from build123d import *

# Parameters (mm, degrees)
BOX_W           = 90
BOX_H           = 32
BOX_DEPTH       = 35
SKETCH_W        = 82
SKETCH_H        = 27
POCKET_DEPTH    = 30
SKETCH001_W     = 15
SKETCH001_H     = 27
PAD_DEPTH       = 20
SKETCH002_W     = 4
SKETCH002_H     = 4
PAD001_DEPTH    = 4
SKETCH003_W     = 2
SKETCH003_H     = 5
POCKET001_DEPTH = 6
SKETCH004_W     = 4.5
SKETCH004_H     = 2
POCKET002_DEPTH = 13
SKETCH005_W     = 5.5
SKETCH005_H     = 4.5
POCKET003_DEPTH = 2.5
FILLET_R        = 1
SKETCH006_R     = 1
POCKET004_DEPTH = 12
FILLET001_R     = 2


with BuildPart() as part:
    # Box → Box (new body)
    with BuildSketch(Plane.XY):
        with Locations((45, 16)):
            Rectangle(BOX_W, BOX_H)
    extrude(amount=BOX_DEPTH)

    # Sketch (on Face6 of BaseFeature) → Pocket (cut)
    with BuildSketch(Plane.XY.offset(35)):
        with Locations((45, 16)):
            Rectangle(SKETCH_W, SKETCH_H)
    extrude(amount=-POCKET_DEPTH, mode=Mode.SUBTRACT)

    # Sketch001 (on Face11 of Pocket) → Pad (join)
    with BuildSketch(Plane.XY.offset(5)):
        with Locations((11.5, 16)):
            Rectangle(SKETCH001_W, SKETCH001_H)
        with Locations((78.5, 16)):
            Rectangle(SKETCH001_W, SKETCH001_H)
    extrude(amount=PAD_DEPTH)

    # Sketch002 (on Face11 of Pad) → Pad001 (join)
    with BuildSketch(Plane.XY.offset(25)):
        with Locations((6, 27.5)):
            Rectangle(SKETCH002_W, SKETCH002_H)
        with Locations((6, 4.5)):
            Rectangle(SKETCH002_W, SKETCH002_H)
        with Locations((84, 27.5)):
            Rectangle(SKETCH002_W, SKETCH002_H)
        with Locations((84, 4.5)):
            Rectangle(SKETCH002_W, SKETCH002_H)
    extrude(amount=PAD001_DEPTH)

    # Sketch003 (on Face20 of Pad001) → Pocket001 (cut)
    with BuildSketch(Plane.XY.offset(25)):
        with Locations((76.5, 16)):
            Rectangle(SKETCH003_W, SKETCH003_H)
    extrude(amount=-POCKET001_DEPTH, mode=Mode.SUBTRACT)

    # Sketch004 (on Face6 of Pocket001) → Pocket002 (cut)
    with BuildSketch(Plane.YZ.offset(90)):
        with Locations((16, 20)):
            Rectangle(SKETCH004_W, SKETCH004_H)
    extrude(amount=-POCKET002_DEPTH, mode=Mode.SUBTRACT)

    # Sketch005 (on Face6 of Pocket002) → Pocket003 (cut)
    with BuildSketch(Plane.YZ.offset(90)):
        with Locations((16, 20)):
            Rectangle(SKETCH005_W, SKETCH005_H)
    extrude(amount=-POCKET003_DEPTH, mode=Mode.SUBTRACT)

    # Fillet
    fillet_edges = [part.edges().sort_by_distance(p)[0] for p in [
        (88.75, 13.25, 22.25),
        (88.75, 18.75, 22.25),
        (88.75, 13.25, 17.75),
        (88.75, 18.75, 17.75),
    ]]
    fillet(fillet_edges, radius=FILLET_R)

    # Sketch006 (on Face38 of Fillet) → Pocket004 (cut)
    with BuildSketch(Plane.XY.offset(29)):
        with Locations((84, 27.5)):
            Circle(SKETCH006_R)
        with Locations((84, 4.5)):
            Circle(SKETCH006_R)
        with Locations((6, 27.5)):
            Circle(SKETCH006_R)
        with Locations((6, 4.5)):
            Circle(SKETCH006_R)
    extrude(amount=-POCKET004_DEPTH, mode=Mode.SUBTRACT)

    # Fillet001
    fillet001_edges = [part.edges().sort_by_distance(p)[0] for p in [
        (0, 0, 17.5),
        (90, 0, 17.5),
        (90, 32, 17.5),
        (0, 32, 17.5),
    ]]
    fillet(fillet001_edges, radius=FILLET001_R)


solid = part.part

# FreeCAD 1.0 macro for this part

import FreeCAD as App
import Part
import Sketcher

V = App.Vector


def edges_at(feature, points):
    """Names of the edges that pass closest to the given points."""
    edges = feature.Shape.Edges
    near = lambda p: min(range(len(edges)), key=lambda i: edges[i].distToShape(Part.Vertex(*p))[0])
    return sorted({f"Edge{near(p) + 1}" for p in points})

doc = App.newDocument("Part")
params = doc.addObject("Spreadsheet::Sheet", "Params")
for row, (alias, value) in enumerate([
    ("sketch1_width", "90 mm"),
    ("sketch1_height", "32 mm"),
    ("pad1_length", "35 mm"),
    ("sketch2_width", "82 mm"),
    ("sketch2_height", "27 mm"),
    ("pocket1_length", "30 mm"),
    ("sketch3_width", "15 mm"),
    ("sketch3_height", "27 mm"),
    ("pad2_length", "20 mm"),
    ("sketch4_width", "4 mm"),
    ("pad3_length", "4 mm"),
    ("sketch5_width", "2 mm"),
    ("sketch5_height", "5 mm"),
    ("pocket2_length", "6 mm"),
    ("sketch6_height", "2 mm"),
    ("sketch6_width", "4.5 mm"),
    ("pocket3_length", "13 mm"),
    ("sketch7_width", "5.5 mm"),
    ("sketch7_height", "4.5 mm"),
    ("pocket4_length", "2.5 mm"),
    ("fillet_radius", "1 mm"),
    ("sketch8_diameter", "2 mm"),
    ("pocket5_length", "12 mm"),
    ("fillet2_radius", "2 mm"),
], start=1):
    params.set(f"A{row}", alias)
    params.set(f"B{row}", "=" + value)
    params.setAlias(f"B{row}", alias)

body = doc.addObject("PartDesign::Body", "Body")

sketch1 = doc.addObject("Sketcher::SketchObject", "Sketch")
body.addObject(sketch1)
sketch1.AttachmentSupport = (doc.XY_Plane, [""])
sketch1.MapMode = "FlatFace"
sketch1.addGeometry(Part.LineSegment(V(0, 32, 0), V(0, 0, 0)), False)
sketch1.addGeometry(Part.LineSegment(V(0, 0, 0), V(90, 0, 0)), False)
sketch1.addGeometry(Part.LineSegment(V(90, 0, 0), V(90, 32, 0)), False)
sketch1.addGeometry(Part.LineSegment(V(90, 32, 0), V(0, 32, 0)), False)
sketch1.addConstraint(Sketcher.Constraint("Coincident", 0, 2, 1, 1))
sketch1.addConstraint(Sketcher.Constraint("Coincident", 1, 2, 2, 1))
sketch1.addConstraint(Sketcher.Constraint("Coincident", 2, 2, 3, 1))
sketch1.addConstraint(Sketcher.Constraint("Coincident", 3, 2, 0, 1))
sketch1.addConstraint(Sketcher.Constraint("Vertical", 0))
sketch1.addConstraint(Sketcher.Constraint("Horizontal", 1))
sketch1.addConstraint(Sketcher.Constraint("Vertical", 2))
sketch1.addConstraint(Sketcher.Constraint("Horizontal", 3))
sketch1.addConstraint(Sketcher.Constraint("Coincident", 0, 2, -1, 1))
sketch1.addConstraint(Sketcher.Constraint("DistanceX", 1, 1, 1, 2, 90.0))
sketch1.addConstraint(Sketcher.Constraint("DistanceY", 0, 2, 0, 1, 32.0))
sketch1.setExpression("Constraints[9]", "Params.sketch1_width")
sketch1.setExpression("Constraints[10]", "Params.sketch1_height")
pad1 = doc.addObject("PartDesign::Pad", "Pad")
body.addObject(pad1)
pad1.Profile = sketch1
pad1.setExpression("Length", "Params.pad1_length")

sketch2 = doc.addObject("Sketcher::SketchObject", "Sketch001")
body.addObject(sketch2)
sketch2.AttachmentSupport = (doc.XY_Plane, [""])
sketch2.MapMode = "FlatFace"
sketch2.AttachmentOffset = App.Placement(V(0, 0, 35), App.Rotation())
sketch2.addGeometry(Part.LineSegment(V(4, 29.5, 0), V(4, 2.5, 0)), False)
sketch2.addGeometry(Part.LineSegment(V(4, 2.5, 0), V(86, 2.5, 0)), False)
sketch2.addGeometry(Part.LineSegment(V(86, 2.5, 0), V(86, 29.5, 0)), False)
sketch2.addGeometry(Part.LineSegment(V(86, 29.5, 0), V(4, 29.5, 0)), False)
sketch2.addConstraint(Sketcher.Constraint("Coincident", 0, 2, 1, 1))
sketch2.addConstraint(Sketcher.Constraint("Coincident", 1, 2, 2, 1))
sketch2.addConstraint(Sketcher.Constraint("Coincident", 2, 2, 3, 1))
sketch2.addConstraint(Sketcher.Constraint("Coincident", 3, 2, 0, 1))
sketch2.addConstraint(Sketcher.Constraint("Vertical", 0))
sketch2.addConstraint(Sketcher.Constraint("Horizontal", 1))
sketch2.addConstraint(Sketcher.Constraint("Vertical", 2))
sketch2.addConstraint(Sketcher.Constraint("Horizontal", 3))
sketch2.addConstraint(Sketcher.Constraint("DistanceX", 1, 1, 1, 2, 82.0))
sketch2.addConstraint(Sketcher.Constraint("DistanceY", 0, 2, 0, 1, 27.0))
sketch2.addConstraint(Sketcher.Constraint("DistanceX", -1, 1, 0, 2, 4.0))
sketch2.addConstraint(Sketcher.Constraint("DistanceY", -1, 1, 0, 2, 2.5))
sketch2.setExpression("Constraints[8]", "Params.sketch2_width")
sketch2.setExpression("Constraints[9]", "Params.sketch2_height")
pocket1 = doc.addObject("PartDesign::Pocket", "Pocket")
body.addObject(pocket1)
pocket1.Profile = sketch2
pocket1.setExpression("Length", "Params.pocket1_length")

sketch3 = doc.addObject("Sketcher::SketchObject", "Sketch002")
body.addObject(sketch3)
sketch3.AttachmentSupport = (doc.XY_Plane, [""])
sketch3.MapMode = "FlatFace"
sketch3.AttachmentOffset = App.Placement(V(0, 0, 5), App.Rotation())
sketch3.addGeometry(Part.LineSegment(V(4, 29.5, 0), V(4, 2.5, 0)), False)
sketch3.addGeometry(Part.LineSegment(V(4, 2.5, 0), V(19, 2.5, 0)), False)
sketch3.addGeometry(Part.LineSegment(V(19, 2.5, 0), V(19, 29.5, 0)), False)
sketch3.addGeometry(Part.LineSegment(V(19, 29.5, 0), V(4, 29.5, 0)), False)
sketch3.addGeometry(Part.LineSegment(V(71, 29.5, 0), V(71, 2.5, 0)), False)
sketch3.addGeometry(Part.LineSegment(V(71, 2.5, 0), V(86, 2.5, 0)), False)
sketch3.addGeometry(Part.LineSegment(V(86, 2.5, 0), V(86, 29.5, 0)), False)
sketch3.addGeometry(Part.LineSegment(V(86, 29.5, 0), V(71, 29.5, 0)), False)
sketch3.addConstraint(Sketcher.Constraint("Coincident", 0, 2, 1, 1))
sketch3.addConstraint(Sketcher.Constraint("Coincident", 1, 2, 2, 1))
sketch3.addConstraint(Sketcher.Constraint("Coincident", 2, 2, 3, 1))
sketch3.addConstraint(Sketcher.Constraint("Coincident", 3, 2, 0, 1))
sketch3.addConstraint(Sketcher.Constraint("Coincident", 4, 2, 5, 1))
sketch3.addConstraint(Sketcher.Constraint("Coincident", 5, 2, 6, 1))
sketch3.addConstraint(Sketcher.Constraint("Coincident", 6, 2, 7, 1))
sketch3.addConstraint(Sketcher.Constraint("Coincident", 7, 2, 4, 1))
sketch3.addConstraint(Sketcher.Constraint("Vertical", 0))
sketch3.addConstraint(Sketcher.Constraint("Horizontal", 1))
sketch3.addConstraint(Sketcher.Constraint("Vertical", 2))
sketch3.addConstraint(Sketcher.Constraint("Horizontal", 3))
sketch3.addConstraint(Sketcher.Constraint("Vertical", 4))
sketch3.addConstraint(Sketcher.Constraint("Horizontal", 5))
sketch3.addConstraint(Sketcher.Constraint("Vertical", 6))
sketch3.addConstraint(Sketcher.Constraint("Horizontal", 7))
sketch3.addConstraint(Sketcher.Constraint("Horizontal", 1, 2, 4, 2))
sketch3.addConstraint(Sketcher.Constraint("Horizontal", 3, 2, 6, 2))
sketch3.addConstraint(Sketcher.Constraint("Equal", 3, 5))
sketch3.addConstraint(Sketcher.Constraint("DistanceX", 1, 1, 1, 2, 15.0))
sketch3.addConstraint(Sketcher.Constraint("DistanceY", 0, 2, 0, 1, 27.0))
sketch3.addConstraint(Sketcher.Constraint("DistanceX", -1, 1, 0, 2, 4.0))
sketch3.addConstraint(Sketcher.Constraint("DistanceX", -1, 1, 4, 2, 71.0))
sketch3.addConstraint(Sketcher.Constraint("DistanceY", -1, 1, 0, 2, 2.5))
sketch3.setExpression("Constraints[19]", "Params.sketch3_width")
sketch3.setExpression("Constraints[20]", "Params.sketch3_height")
pad2 = doc.addObject("PartDesign::Pad", "Pad001")
body.addObject(pad2)
pad2.Profile = sketch3
pad2.setExpression("Length", "Params.pad2_length")

sketch4 = doc.addObject("Sketcher::SketchObject", "Sketch003")
body.addObject(sketch4)
sketch4.AttachmentSupport = (doc.XY_Plane, [""])
sketch4.MapMode = "FlatFace"
sketch4.AttachmentOffset = App.Placement(V(0, 0, 25), App.Rotation())
sketch4.addGeometry(Part.LineSegment(V(4, 29.5, 0), V(4, 25.5, 0)), False)
sketch4.addGeometry(Part.LineSegment(V(4, 25.5, 0), V(8, 25.5, 0)), False)
sketch4.addGeometry(Part.LineSegment(V(8, 25.5, 0), V(8, 29.5, 0)), False)
sketch4.addGeometry(Part.LineSegment(V(8, 29.5, 0), V(4, 29.5, 0)), False)
sketch4.addGeometry(Part.LineSegment(V(4, 6.5, 0), V(4, 2.5, 0)), False)
sketch4.addGeometry(Part.LineSegment(V(4, 2.5, 0), V(8, 2.5, 0)), False)
sketch4.addGeometry(Part.LineSegment(V(8, 2.5, 0), V(8, 6.5, 0)), False)
sketch4.addGeometry(Part.LineSegment(V(8, 6.5, 0), V(4, 6.5, 0)), False)
sketch4.addGeometry(Part.LineSegment(V(82, 29.5, 0), V(82, 25.5, 0)), False)
sketch4.addGeometry(Part.LineSegment(V(82, 25.5, 0), V(86, 25.5, 0)), False)
sketch4.addGeometry(Part.LineSegment(V(86, 25.5, 0), V(86, 29.5, 0)), False)
sketch4.addGeometry(Part.LineSegment(V(86, 29.5, 0), V(82, 29.5, 0)), False)
sketch4.addGeometry(Part.LineSegment(V(82, 6.5, 0), V(82, 2.5, 0)), False)
sketch4.addGeometry(Part.LineSegment(V(82, 2.5, 0), V(86, 2.5, 0)), False)
sketch4.addGeometry(Part.LineSegment(V(86, 2.5, 0), V(86, 6.5, 0)), False)
sketch4.addGeometry(Part.LineSegment(V(86, 6.5, 0), V(82, 6.5, 0)), False)
sketch4.addConstraint(Sketcher.Constraint("Coincident", 0, 2, 1, 1))
sketch4.addConstraint(Sketcher.Constraint("Coincident", 1, 2, 2, 1))
sketch4.addConstraint(Sketcher.Constraint("Coincident", 2, 2, 3, 1))
sketch4.addConstraint(Sketcher.Constraint("Coincident", 3, 2, 0, 1))
sketch4.addConstraint(Sketcher.Constraint("Coincident", 4, 2, 5, 1))
sketch4.addConstraint(Sketcher.Constraint("Coincident", 5, 2, 6, 1))
sketch4.addConstraint(Sketcher.Constraint("Coincident", 6, 2, 7, 1))
sketch4.addConstraint(Sketcher.Constraint("Coincident", 7, 2, 4, 1))
sketch4.addConstraint(Sketcher.Constraint("Coincident", 8, 2, 9, 1))
sketch4.addConstraint(Sketcher.Constraint("Coincident", 9, 2, 10, 1))
sketch4.addConstraint(Sketcher.Constraint("Coincident", 10, 2, 11, 1))
sketch4.addConstraint(Sketcher.Constraint("Coincident", 11, 2, 8, 1))
sketch4.addConstraint(Sketcher.Constraint("Coincident", 12, 2, 13, 1))
sketch4.addConstraint(Sketcher.Constraint("Coincident", 13, 2, 14, 1))
sketch4.addConstraint(Sketcher.Constraint("Coincident", 14, 2, 15, 1))
sketch4.addConstraint(Sketcher.Constraint("Coincident", 15, 2, 12, 1))
sketch4.addConstraint(Sketcher.Constraint("Vertical", 0))
sketch4.addConstraint(Sketcher.Constraint("Horizontal", 1))
sketch4.addConstraint(Sketcher.Constraint("Vertical", 2))
sketch4.addConstraint(Sketcher.Constraint("Horizontal", 3))
sketch4.addConstraint(Sketcher.Constraint("Vertical", 4))
sketch4.addConstraint(Sketcher.Constraint("Horizontal", 5))
sketch4.addConstraint(Sketcher.Constraint("Vertical", 6))
sketch4.addConstraint(Sketcher.Constraint("Horizontal", 7))
sketch4.addConstraint(Sketcher.Constraint("Vertical", 8))
sketch4.addConstraint(Sketcher.Constraint("Horizontal", 9))
sketch4.addConstraint(Sketcher.Constraint("Vertical", 10))
sketch4.addConstraint(Sketcher.Constraint("Horizontal", 11))
sketch4.addConstraint(Sketcher.Constraint("Vertical", 12))
sketch4.addConstraint(Sketcher.Constraint("Horizontal", 13))
sketch4.addConstraint(Sketcher.Constraint("Vertical", 14))
sketch4.addConstraint(Sketcher.Constraint("Horizontal", 15))
sketch4.addConstraint(Sketcher.Constraint("Horizontal", 1, 2, 8, 2))
sketch4.addConstraint(Sketcher.Constraint("Horizontal", 3, 2, 10, 2))
sketch4.addConstraint(Sketcher.Constraint("Horizontal", 5, 2, 12, 2))
sketch4.addConstraint(Sketcher.Constraint("Horizontal", 7, 2, 14, 2))
sketch4.addConstraint(Sketcher.Constraint("Vertical", 3, 2, 4, 2))
sketch4.addConstraint(Sketcher.Constraint("Vertical", 2, 2, 5, 2))
sketch4.addConstraint(Sketcher.Constraint("Vertical", 11, 2, 12, 2))
sketch4.addConstraint(Sketcher.Constraint("Vertical", 10, 2, 13, 2))
sketch4.addConstraint(Sketcher.Constraint("Equal", 7, 9))
sketch4.addConstraint(Sketcher.Constraint("Equal", 15, 0))
sketch4.addConstraint(Sketcher.Constraint("Equal", 2, 4))
sketch4.addConstraint(Sketcher.Constraint("DistanceX", 1, 1, 1, 2, 4.0))
sketch4.addConstraint(Sketcher.Constraint("DistanceX", -1, 1, 0, 2, 4.0))
sketch4.addConstraint(Sketcher.Constraint("DistanceX", -1, 1, 8, 2, 82.0))
sketch4.addConstraint(Sketcher.Constraint("DistanceY", 4, 2, 0, 2, 23.0))
sketch4.addConstraint(Sketcher.Constraint("DistanceY", -1, 1, 0, 2, 25.5))
sketch4.setExpression("Constraints[43]", "Params.sketch4_width")
pad3 = doc.addObject("PartDesign::Pad", "Pad002")
body.addObject(pad3)
pad3.Profile = sketch4
pad3.setExpression("Length", "Params.pad3_length")

sketch5 = doc.addObject("Sketcher::SketchObject", "Sketch004")
body.addObject(sketch5)
sketch5.AttachmentSupport = (doc.XY_Plane, [""])
sketch5.MapMode = "FlatFace"
sketch5.AttachmentOffset = App.Placement(V(0, 0, 25), App.Rotation())
sketch5.addGeometry(Part.LineSegment(V(75.5, 18.5, 0), V(75.5, 13.5, 0)), False)
sketch5.addGeometry(Part.LineSegment(V(75.5, 13.5, 0), V(77.5, 13.5, 0)), False)
sketch5.addGeometry(Part.LineSegment(V(77.5, 13.5, 0), V(77.5, 18.5, 0)), False)
sketch5.addGeometry(Part.LineSegment(V(77.5, 18.5, 0), V(75.5, 18.5, 0)), False)
sketch5.addConstraint(Sketcher.Constraint("Coincident", 0, 2, 1, 1))
sketch5.addConstraint(Sketcher.Constraint("Coincident", 1, 2, 2, 1))
sketch5.addConstraint(Sketcher.Constraint("Coincident", 2, 2, 3, 1))
sketch5.addConstraint(Sketcher.Constraint("Coincident", 3, 2, 0, 1))
sketch5.addConstraint(Sketcher.Constraint("Vertical", 0))
sketch5.addConstraint(Sketcher.Constraint("Horizontal", 1))
sketch5.addConstraint(Sketcher.Constraint("Vertical", 2))
sketch5.addConstraint(Sketcher.Constraint("Horizontal", 3))
sketch5.addConstraint(Sketcher.Constraint("DistanceX", 1, 1, 1, 2, 2.0))
sketch5.addConstraint(Sketcher.Constraint("DistanceY", 0, 2, 0, 1, 5.0))
sketch5.addConstraint(Sketcher.Constraint("DistanceX", -1, 1, 0, 2, 75.5))
sketch5.addConstraint(Sketcher.Constraint("DistanceY", -1, 1, 0, 2, 13.5))
sketch5.setExpression("Constraints[8]", "Params.sketch5_width")
sketch5.setExpression("Constraints[9]", "Params.sketch5_height")
pocket2 = doc.addObject("PartDesign::Pocket", "Pocket001")
body.addObject(pocket2)
pocket2.Profile = sketch5
pocket2.setExpression("Length", "Params.pocket2_length")

sketch6 = doc.addObject("Sketcher::SketchObject", "Sketch005")
body.addObject(sketch6)
sketch6.AttachmentSupport = (doc.YZ_Plane, [""])
sketch6.MapMode = "FlatFace"
sketch6.AttachmentOffset = App.Placement(V(0, 0, 90), App.Rotation())
sketch6.addGeometry(Part.LineSegment(V(13.75, 21, 0), V(13.75, 19, 0)), False)
sketch6.addGeometry(Part.LineSegment(V(13.75, 19, 0), V(18.25, 19, 0)), False)
sketch6.addGeometry(Part.LineSegment(V(18.25, 19, 0), V(18.25, 21, 0)), False)
sketch6.addGeometry(Part.LineSegment(V(18.25, 21, 0), V(13.75, 21, 0)), False)
sketch6.addConstraint(Sketcher.Constraint("Coincident", 0, 2, 1, 1))
sketch6.addConstraint(Sketcher.Constraint("Coincident", 1, 2, 2, 1))
sketch6.addConstraint(Sketcher.Constraint("Coincident", 2, 2, 3, 1))
sketch6.addConstraint(Sketcher.Constraint("Coincident", 3, 2, 0, 1))
sketch6.addConstraint(Sketcher.Constraint("Vertical", 0))
sketch6.addConstraint(Sketcher.Constraint("Horizontal", 1))
sketch6.addConstraint(Sketcher.Constraint("Vertical", 2))
sketch6.addConstraint(Sketcher.Constraint("Horizontal", 3))
sketch6.addConstraint(Sketcher.Constraint("DistanceY", 0, 2, 0, 1, 2.0))
sketch6.addConstraint(Sketcher.Constraint("DistanceX", 1, 1, 1, 2, 4.5))
sketch6.addConstraint(Sketcher.Constraint("DistanceY", -1, 1, 0, 2, 19.0))
sketch6.addConstraint(Sketcher.Constraint("DistanceX", -1, 1, 0, 2, 13.75))
sketch6.setExpression("Constraints[8]", "Params.sketch6_height")
sketch6.setExpression("Constraints[9]", "Params.sketch6_width")
pocket3 = doc.addObject("PartDesign::Pocket", "Pocket002")
body.addObject(pocket3)
pocket3.Profile = sketch6
pocket3.setExpression("Length", "Params.pocket3_length")

sketch7 = doc.addObject("Sketcher::SketchObject", "Sketch006")
body.addObject(sketch7)
sketch7.AttachmentSupport = (doc.YZ_Plane, [""])
sketch7.MapMode = "FlatFace"
sketch7.AttachmentOffset = App.Placement(V(0, 0, 90), App.Rotation())
sketch7.addGeometry(Part.LineSegment(V(13.25, 22.25, 0), V(13.25, 17.75, 0)), False)
sketch7.addGeometry(Part.LineSegment(V(13.25, 17.75, 0), V(18.75, 17.75, 0)), False)
sketch7.addGeometry(Part.LineSegment(V(18.75, 17.75, 0), V(18.75, 22.25, 0)), False)
sketch7.addGeometry(Part.LineSegment(V(18.75, 22.25, 0), V(13.25, 22.25, 0)), False)
sketch7.addConstraint(Sketcher.Constraint("Coincident", 0, 2, 1, 1))
sketch7.addConstraint(Sketcher.Constraint("Coincident", 1, 2, 2, 1))
sketch7.addConstraint(Sketcher.Constraint("Coincident", 2, 2, 3, 1))
sketch7.addConstraint(Sketcher.Constraint("Coincident", 3, 2, 0, 1))
sketch7.addConstraint(Sketcher.Constraint("Vertical", 0))
sketch7.addConstraint(Sketcher.Constraint("Horizontal", 1))
sketch7.addConstraint(Sketcher.Constraint("Vertical", 2))
sketch7.addConstraint(Sketcher.Constraint("Horizontal", 3))
sketch7.addConstraint(Sketcher.Constraint("DistanceX", 1, 1, 1, 2, 5.5))
sketch7.addConstraint(Sketcher.Constraint("DistanceY", 0, 2, 0, 1, 4.5))
sketch7.addConstraint(Sketcher.Constraint("DistanceX", -1, 1, 0, 2, 13.25))
sketch7.addConstraint(Sketcher.Constraint("DistanceY", -1, 1, 0, 2, 17.75))
sketch7.setExpression("Constraints[8]", "Params.sketch7_width")
sketch7.setExpression("Constraints[9]", "Params.sketch7_height")
pocket4 = doc.addObject("PartDesign::Pocket", "Pocket003")
body.addObject(pocket4)
pocket4.Profile = sketch7
pocket4.setExpression("Length", "Params.pocket4_length")
doc.recompute()

fillet = doc.addObject("PartDesign::Fillet", "Fillet")
body.addObject(fillet)
fillet.Base = (pocket4, edges_at(pocket4, [
    (88.75, 13.25, 22.25),
    (88.75, 18.75, 22.25),
    (88.75, 13.25, 17.75),
    (88.75, 18.75, 17.75),
]))
fillet.setExpression("Radius", "Params.fillet_radius")

sketch8 = doc.addObject("Sketcher::SketchObject", "Sketch007")
body.addObject(sketch8)
sketch8.AttachmentSupport = (doc.XY_Plane, [""])
sketch8.MapMode = "FlatFace"
sketch8.AttachmentOffset = App.Placement(V(0, 0, 29), App.Rotation())
sketch8.addGeometry(Part.Circle(V(84, 27.5, 0), V(0, 0, 1), 1), False)
sketch8.addGeometry(Part.Circle(V(84, 4.5, 0), V(0, 0, 1), 1), False)
sketch8.addGeometry(Part.Circle(V(6, 27.5, 0), V(0, 0, 1), 1), False)
sketch8.addGeometry(Part.Circle(V(6, 4.5, 0), V(0, 0, 1), 1), False)
sketch8.addConstraint(Sketcher.Constraint("Equal", 0, 1))
sketch8.addConstraint(Sketcher.Constraint("Equal", 1, 2))
sketch8.addConstraint(Sketcher.Constraint("Equal", 2, 3))
sketch8.addConstraint(Sketcher.Constraint("Horizontal", 0, 3, 2, 3))
sketch8.addConstraint(Sketcher.Constraint("Horizontal", 1, 3, 3, 3))
sketch8.addConstraint(Sketcher.Constraint("Vertical", 0, 3, 1, 3))
sketch8.addConstraint(Sketcher.Constraint("Vertical", 2, 3, 3, 3))
sketch8.addConstraint(Sketcher.Constraint("Diameter", 0, 2.0))
sketch8.addConstraint(Sketcher.Constraint("DistanceX", -1, 1, 0, 3, 84.0))
sketch8.addConstraint(Sketcher.Constraint("DistanceX", -1, 1, 2, 3, 6.0))
sketch8.addConstraint(Sketcher.Constraint("DistanceY", 1, 3, 0, 3, 23.0))
sketch8.addConstraint(Sketcher.Constraint("DistanceY", -1, 1, 0, 3, 27.5))
sketch8.setExpression("Constraints[7]", "Params.sketch8_diameter")
pocket5 = doc.addObject("PartDesign::Pocket", "Pocket004")
body.addObject(pocket5)
pocket5.Profile = sketch8
pocket5.setExpression("Length", "Params.pocket5_length")
doc.recompute()

fillet2 = doc.addObject("PartDesign::Fillet", "Fillet001")
body.addObject(fillet2)
fillet2.Base = (pocket5, edges_at(pocket5, [
    (0, 0, 17.5),
    (90, 0, 17.5),
    (90, 32, 17.5),
    (0, 32, 17.5),
]))
fillet2.setExpression("Radius", "Params.fillet2_radius")

doc.recompute()
